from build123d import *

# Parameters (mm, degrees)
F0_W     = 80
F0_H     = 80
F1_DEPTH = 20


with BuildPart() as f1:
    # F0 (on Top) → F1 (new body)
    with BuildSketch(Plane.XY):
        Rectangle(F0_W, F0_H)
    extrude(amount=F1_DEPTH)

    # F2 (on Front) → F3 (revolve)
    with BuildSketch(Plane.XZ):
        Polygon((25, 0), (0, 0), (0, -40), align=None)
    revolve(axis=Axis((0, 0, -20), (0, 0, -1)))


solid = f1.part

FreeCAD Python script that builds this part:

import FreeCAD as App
import Part
import Sketcher
from FreeCAD import Vector

doc = App.newDocument("Part")
body = doc.addObject("PartDesign::Body", "Body")

# Sketch on XY plane
sketch1 = body.newObject("Sketcher::SketchObject", "Sketch")
sketch1.AttachmentSupport = (doc.getObject("XY_Plane"), [""])
sketch1.MapMode = "FlatFace"
sketch1.addGeometry(Part.LineSegment(Vector(-40, 40, 0), Vector(-40, -40, 0)), False)
sketch1.addGeometry(Part.LineSegment(Vector(-40, -40, 0), Vector(40, -40, 0)), False)
sketch1.addGeometry(Part.LineSegment(Vector(40, -40, 0), Vector(40, 40, 0)), False)
sketch1.addGeometry(Part.LineSegment(Vector(40, 40, 0), Vector(-40, 40, 0)), False)
sketch1.addConstraint(Sketcher.Constraint("Coincident", 0, 2, 1, 1))
sketch1.addConstraint(Sketcher.Constraint("Coincident", 1, 2, 2, 1))
sketch1.addConstraint(Sketcher.Constraint("Coincident", 2, 2, 3, 1))
sketch1.addConstraint(Sketcher.Constraint("Coincident", 3, 2, 0, 1))
sketch1.addConstraint(Sketcher.Constraint("Vertical", 0))
sketch1.addConstraint(Sketcher.Constraint("Horizontal", 1))
sketch1.addConstraint(Sketcher.Constraint("Vertical", 2))
sketch1.addConstraint(Sketcher.Constraint("Horizontal", 3))
sketch1.addConstraint(Sketcher.Constraint("Symmetric", 0, 2, 2, 2, -1, 1))
sketch1.addConstraint(Sketcher.Constraint("Equal", 3, 0))
sketch1.addConstraint(Sketcher.Constraint("DistanceX", 1, 1, 1, 2, 80.0))
pad1 = body.newObject("PartDesign::Pad", "Pad")
pad1.Profile = sketch1
pad1.Length = 20

# Sketch on XZ plane
sketch2 = body.newObject("Sketcher::SketchObject", "Sketch001")
sketch2.AttachmentSupport = (doc.getObject("XZ_Plane"), [""])
sketch2.MapMode = "FlatFace"
sketch2.addGeometry(Part.LineSegment(Vector(25, 0, 0), Vector(0, 0, 0)), False)
sketch2.addGeometry(Part.LineSegment(Vector(0, 0, 0), Vector(0, -40, 0)), False)
sketch2.addGeometry(Part.LineSegment(Vector(0, -40, 0), Vector(25, 0, 0)), False)
sketch2.addConstraint(Sketcher.Constraint("Coincident", 0, 2, 1, 1))
sketch2.addConstraint(Sketcher.Constraint("Coincident", 1, 2, 2, 1))
sketch2.addConstraint(Sketcher.Constraint("Coincident", 2, 2, 0, 1))
sketch2.addConstraint(Sketcher.Constraint("Horizontal", 0))
sketch2.addConstraint(Sketcher.Constraint("Vertical", 1))
sketch2.addConstraint(Sketcher.Constraint("Coincident", 0, 2, -1, 1))
sketch2.addConstraint(Sketcher.Constraint("DistanceX", 0, 2, 0, 1, 25.0))
sketch2.addConstraint(Sketcher.Constraint("DistanceY", 1, 2, 1, 1, 40.0))
revolution = body.newObject("PartDesign::Revolution", "Revolution")
revolution.Profile = sketch2
revolution.ReferenceAxis = (sketch2, ["V_Axis"])
revolution.Angle = 360

doc.recompute()
